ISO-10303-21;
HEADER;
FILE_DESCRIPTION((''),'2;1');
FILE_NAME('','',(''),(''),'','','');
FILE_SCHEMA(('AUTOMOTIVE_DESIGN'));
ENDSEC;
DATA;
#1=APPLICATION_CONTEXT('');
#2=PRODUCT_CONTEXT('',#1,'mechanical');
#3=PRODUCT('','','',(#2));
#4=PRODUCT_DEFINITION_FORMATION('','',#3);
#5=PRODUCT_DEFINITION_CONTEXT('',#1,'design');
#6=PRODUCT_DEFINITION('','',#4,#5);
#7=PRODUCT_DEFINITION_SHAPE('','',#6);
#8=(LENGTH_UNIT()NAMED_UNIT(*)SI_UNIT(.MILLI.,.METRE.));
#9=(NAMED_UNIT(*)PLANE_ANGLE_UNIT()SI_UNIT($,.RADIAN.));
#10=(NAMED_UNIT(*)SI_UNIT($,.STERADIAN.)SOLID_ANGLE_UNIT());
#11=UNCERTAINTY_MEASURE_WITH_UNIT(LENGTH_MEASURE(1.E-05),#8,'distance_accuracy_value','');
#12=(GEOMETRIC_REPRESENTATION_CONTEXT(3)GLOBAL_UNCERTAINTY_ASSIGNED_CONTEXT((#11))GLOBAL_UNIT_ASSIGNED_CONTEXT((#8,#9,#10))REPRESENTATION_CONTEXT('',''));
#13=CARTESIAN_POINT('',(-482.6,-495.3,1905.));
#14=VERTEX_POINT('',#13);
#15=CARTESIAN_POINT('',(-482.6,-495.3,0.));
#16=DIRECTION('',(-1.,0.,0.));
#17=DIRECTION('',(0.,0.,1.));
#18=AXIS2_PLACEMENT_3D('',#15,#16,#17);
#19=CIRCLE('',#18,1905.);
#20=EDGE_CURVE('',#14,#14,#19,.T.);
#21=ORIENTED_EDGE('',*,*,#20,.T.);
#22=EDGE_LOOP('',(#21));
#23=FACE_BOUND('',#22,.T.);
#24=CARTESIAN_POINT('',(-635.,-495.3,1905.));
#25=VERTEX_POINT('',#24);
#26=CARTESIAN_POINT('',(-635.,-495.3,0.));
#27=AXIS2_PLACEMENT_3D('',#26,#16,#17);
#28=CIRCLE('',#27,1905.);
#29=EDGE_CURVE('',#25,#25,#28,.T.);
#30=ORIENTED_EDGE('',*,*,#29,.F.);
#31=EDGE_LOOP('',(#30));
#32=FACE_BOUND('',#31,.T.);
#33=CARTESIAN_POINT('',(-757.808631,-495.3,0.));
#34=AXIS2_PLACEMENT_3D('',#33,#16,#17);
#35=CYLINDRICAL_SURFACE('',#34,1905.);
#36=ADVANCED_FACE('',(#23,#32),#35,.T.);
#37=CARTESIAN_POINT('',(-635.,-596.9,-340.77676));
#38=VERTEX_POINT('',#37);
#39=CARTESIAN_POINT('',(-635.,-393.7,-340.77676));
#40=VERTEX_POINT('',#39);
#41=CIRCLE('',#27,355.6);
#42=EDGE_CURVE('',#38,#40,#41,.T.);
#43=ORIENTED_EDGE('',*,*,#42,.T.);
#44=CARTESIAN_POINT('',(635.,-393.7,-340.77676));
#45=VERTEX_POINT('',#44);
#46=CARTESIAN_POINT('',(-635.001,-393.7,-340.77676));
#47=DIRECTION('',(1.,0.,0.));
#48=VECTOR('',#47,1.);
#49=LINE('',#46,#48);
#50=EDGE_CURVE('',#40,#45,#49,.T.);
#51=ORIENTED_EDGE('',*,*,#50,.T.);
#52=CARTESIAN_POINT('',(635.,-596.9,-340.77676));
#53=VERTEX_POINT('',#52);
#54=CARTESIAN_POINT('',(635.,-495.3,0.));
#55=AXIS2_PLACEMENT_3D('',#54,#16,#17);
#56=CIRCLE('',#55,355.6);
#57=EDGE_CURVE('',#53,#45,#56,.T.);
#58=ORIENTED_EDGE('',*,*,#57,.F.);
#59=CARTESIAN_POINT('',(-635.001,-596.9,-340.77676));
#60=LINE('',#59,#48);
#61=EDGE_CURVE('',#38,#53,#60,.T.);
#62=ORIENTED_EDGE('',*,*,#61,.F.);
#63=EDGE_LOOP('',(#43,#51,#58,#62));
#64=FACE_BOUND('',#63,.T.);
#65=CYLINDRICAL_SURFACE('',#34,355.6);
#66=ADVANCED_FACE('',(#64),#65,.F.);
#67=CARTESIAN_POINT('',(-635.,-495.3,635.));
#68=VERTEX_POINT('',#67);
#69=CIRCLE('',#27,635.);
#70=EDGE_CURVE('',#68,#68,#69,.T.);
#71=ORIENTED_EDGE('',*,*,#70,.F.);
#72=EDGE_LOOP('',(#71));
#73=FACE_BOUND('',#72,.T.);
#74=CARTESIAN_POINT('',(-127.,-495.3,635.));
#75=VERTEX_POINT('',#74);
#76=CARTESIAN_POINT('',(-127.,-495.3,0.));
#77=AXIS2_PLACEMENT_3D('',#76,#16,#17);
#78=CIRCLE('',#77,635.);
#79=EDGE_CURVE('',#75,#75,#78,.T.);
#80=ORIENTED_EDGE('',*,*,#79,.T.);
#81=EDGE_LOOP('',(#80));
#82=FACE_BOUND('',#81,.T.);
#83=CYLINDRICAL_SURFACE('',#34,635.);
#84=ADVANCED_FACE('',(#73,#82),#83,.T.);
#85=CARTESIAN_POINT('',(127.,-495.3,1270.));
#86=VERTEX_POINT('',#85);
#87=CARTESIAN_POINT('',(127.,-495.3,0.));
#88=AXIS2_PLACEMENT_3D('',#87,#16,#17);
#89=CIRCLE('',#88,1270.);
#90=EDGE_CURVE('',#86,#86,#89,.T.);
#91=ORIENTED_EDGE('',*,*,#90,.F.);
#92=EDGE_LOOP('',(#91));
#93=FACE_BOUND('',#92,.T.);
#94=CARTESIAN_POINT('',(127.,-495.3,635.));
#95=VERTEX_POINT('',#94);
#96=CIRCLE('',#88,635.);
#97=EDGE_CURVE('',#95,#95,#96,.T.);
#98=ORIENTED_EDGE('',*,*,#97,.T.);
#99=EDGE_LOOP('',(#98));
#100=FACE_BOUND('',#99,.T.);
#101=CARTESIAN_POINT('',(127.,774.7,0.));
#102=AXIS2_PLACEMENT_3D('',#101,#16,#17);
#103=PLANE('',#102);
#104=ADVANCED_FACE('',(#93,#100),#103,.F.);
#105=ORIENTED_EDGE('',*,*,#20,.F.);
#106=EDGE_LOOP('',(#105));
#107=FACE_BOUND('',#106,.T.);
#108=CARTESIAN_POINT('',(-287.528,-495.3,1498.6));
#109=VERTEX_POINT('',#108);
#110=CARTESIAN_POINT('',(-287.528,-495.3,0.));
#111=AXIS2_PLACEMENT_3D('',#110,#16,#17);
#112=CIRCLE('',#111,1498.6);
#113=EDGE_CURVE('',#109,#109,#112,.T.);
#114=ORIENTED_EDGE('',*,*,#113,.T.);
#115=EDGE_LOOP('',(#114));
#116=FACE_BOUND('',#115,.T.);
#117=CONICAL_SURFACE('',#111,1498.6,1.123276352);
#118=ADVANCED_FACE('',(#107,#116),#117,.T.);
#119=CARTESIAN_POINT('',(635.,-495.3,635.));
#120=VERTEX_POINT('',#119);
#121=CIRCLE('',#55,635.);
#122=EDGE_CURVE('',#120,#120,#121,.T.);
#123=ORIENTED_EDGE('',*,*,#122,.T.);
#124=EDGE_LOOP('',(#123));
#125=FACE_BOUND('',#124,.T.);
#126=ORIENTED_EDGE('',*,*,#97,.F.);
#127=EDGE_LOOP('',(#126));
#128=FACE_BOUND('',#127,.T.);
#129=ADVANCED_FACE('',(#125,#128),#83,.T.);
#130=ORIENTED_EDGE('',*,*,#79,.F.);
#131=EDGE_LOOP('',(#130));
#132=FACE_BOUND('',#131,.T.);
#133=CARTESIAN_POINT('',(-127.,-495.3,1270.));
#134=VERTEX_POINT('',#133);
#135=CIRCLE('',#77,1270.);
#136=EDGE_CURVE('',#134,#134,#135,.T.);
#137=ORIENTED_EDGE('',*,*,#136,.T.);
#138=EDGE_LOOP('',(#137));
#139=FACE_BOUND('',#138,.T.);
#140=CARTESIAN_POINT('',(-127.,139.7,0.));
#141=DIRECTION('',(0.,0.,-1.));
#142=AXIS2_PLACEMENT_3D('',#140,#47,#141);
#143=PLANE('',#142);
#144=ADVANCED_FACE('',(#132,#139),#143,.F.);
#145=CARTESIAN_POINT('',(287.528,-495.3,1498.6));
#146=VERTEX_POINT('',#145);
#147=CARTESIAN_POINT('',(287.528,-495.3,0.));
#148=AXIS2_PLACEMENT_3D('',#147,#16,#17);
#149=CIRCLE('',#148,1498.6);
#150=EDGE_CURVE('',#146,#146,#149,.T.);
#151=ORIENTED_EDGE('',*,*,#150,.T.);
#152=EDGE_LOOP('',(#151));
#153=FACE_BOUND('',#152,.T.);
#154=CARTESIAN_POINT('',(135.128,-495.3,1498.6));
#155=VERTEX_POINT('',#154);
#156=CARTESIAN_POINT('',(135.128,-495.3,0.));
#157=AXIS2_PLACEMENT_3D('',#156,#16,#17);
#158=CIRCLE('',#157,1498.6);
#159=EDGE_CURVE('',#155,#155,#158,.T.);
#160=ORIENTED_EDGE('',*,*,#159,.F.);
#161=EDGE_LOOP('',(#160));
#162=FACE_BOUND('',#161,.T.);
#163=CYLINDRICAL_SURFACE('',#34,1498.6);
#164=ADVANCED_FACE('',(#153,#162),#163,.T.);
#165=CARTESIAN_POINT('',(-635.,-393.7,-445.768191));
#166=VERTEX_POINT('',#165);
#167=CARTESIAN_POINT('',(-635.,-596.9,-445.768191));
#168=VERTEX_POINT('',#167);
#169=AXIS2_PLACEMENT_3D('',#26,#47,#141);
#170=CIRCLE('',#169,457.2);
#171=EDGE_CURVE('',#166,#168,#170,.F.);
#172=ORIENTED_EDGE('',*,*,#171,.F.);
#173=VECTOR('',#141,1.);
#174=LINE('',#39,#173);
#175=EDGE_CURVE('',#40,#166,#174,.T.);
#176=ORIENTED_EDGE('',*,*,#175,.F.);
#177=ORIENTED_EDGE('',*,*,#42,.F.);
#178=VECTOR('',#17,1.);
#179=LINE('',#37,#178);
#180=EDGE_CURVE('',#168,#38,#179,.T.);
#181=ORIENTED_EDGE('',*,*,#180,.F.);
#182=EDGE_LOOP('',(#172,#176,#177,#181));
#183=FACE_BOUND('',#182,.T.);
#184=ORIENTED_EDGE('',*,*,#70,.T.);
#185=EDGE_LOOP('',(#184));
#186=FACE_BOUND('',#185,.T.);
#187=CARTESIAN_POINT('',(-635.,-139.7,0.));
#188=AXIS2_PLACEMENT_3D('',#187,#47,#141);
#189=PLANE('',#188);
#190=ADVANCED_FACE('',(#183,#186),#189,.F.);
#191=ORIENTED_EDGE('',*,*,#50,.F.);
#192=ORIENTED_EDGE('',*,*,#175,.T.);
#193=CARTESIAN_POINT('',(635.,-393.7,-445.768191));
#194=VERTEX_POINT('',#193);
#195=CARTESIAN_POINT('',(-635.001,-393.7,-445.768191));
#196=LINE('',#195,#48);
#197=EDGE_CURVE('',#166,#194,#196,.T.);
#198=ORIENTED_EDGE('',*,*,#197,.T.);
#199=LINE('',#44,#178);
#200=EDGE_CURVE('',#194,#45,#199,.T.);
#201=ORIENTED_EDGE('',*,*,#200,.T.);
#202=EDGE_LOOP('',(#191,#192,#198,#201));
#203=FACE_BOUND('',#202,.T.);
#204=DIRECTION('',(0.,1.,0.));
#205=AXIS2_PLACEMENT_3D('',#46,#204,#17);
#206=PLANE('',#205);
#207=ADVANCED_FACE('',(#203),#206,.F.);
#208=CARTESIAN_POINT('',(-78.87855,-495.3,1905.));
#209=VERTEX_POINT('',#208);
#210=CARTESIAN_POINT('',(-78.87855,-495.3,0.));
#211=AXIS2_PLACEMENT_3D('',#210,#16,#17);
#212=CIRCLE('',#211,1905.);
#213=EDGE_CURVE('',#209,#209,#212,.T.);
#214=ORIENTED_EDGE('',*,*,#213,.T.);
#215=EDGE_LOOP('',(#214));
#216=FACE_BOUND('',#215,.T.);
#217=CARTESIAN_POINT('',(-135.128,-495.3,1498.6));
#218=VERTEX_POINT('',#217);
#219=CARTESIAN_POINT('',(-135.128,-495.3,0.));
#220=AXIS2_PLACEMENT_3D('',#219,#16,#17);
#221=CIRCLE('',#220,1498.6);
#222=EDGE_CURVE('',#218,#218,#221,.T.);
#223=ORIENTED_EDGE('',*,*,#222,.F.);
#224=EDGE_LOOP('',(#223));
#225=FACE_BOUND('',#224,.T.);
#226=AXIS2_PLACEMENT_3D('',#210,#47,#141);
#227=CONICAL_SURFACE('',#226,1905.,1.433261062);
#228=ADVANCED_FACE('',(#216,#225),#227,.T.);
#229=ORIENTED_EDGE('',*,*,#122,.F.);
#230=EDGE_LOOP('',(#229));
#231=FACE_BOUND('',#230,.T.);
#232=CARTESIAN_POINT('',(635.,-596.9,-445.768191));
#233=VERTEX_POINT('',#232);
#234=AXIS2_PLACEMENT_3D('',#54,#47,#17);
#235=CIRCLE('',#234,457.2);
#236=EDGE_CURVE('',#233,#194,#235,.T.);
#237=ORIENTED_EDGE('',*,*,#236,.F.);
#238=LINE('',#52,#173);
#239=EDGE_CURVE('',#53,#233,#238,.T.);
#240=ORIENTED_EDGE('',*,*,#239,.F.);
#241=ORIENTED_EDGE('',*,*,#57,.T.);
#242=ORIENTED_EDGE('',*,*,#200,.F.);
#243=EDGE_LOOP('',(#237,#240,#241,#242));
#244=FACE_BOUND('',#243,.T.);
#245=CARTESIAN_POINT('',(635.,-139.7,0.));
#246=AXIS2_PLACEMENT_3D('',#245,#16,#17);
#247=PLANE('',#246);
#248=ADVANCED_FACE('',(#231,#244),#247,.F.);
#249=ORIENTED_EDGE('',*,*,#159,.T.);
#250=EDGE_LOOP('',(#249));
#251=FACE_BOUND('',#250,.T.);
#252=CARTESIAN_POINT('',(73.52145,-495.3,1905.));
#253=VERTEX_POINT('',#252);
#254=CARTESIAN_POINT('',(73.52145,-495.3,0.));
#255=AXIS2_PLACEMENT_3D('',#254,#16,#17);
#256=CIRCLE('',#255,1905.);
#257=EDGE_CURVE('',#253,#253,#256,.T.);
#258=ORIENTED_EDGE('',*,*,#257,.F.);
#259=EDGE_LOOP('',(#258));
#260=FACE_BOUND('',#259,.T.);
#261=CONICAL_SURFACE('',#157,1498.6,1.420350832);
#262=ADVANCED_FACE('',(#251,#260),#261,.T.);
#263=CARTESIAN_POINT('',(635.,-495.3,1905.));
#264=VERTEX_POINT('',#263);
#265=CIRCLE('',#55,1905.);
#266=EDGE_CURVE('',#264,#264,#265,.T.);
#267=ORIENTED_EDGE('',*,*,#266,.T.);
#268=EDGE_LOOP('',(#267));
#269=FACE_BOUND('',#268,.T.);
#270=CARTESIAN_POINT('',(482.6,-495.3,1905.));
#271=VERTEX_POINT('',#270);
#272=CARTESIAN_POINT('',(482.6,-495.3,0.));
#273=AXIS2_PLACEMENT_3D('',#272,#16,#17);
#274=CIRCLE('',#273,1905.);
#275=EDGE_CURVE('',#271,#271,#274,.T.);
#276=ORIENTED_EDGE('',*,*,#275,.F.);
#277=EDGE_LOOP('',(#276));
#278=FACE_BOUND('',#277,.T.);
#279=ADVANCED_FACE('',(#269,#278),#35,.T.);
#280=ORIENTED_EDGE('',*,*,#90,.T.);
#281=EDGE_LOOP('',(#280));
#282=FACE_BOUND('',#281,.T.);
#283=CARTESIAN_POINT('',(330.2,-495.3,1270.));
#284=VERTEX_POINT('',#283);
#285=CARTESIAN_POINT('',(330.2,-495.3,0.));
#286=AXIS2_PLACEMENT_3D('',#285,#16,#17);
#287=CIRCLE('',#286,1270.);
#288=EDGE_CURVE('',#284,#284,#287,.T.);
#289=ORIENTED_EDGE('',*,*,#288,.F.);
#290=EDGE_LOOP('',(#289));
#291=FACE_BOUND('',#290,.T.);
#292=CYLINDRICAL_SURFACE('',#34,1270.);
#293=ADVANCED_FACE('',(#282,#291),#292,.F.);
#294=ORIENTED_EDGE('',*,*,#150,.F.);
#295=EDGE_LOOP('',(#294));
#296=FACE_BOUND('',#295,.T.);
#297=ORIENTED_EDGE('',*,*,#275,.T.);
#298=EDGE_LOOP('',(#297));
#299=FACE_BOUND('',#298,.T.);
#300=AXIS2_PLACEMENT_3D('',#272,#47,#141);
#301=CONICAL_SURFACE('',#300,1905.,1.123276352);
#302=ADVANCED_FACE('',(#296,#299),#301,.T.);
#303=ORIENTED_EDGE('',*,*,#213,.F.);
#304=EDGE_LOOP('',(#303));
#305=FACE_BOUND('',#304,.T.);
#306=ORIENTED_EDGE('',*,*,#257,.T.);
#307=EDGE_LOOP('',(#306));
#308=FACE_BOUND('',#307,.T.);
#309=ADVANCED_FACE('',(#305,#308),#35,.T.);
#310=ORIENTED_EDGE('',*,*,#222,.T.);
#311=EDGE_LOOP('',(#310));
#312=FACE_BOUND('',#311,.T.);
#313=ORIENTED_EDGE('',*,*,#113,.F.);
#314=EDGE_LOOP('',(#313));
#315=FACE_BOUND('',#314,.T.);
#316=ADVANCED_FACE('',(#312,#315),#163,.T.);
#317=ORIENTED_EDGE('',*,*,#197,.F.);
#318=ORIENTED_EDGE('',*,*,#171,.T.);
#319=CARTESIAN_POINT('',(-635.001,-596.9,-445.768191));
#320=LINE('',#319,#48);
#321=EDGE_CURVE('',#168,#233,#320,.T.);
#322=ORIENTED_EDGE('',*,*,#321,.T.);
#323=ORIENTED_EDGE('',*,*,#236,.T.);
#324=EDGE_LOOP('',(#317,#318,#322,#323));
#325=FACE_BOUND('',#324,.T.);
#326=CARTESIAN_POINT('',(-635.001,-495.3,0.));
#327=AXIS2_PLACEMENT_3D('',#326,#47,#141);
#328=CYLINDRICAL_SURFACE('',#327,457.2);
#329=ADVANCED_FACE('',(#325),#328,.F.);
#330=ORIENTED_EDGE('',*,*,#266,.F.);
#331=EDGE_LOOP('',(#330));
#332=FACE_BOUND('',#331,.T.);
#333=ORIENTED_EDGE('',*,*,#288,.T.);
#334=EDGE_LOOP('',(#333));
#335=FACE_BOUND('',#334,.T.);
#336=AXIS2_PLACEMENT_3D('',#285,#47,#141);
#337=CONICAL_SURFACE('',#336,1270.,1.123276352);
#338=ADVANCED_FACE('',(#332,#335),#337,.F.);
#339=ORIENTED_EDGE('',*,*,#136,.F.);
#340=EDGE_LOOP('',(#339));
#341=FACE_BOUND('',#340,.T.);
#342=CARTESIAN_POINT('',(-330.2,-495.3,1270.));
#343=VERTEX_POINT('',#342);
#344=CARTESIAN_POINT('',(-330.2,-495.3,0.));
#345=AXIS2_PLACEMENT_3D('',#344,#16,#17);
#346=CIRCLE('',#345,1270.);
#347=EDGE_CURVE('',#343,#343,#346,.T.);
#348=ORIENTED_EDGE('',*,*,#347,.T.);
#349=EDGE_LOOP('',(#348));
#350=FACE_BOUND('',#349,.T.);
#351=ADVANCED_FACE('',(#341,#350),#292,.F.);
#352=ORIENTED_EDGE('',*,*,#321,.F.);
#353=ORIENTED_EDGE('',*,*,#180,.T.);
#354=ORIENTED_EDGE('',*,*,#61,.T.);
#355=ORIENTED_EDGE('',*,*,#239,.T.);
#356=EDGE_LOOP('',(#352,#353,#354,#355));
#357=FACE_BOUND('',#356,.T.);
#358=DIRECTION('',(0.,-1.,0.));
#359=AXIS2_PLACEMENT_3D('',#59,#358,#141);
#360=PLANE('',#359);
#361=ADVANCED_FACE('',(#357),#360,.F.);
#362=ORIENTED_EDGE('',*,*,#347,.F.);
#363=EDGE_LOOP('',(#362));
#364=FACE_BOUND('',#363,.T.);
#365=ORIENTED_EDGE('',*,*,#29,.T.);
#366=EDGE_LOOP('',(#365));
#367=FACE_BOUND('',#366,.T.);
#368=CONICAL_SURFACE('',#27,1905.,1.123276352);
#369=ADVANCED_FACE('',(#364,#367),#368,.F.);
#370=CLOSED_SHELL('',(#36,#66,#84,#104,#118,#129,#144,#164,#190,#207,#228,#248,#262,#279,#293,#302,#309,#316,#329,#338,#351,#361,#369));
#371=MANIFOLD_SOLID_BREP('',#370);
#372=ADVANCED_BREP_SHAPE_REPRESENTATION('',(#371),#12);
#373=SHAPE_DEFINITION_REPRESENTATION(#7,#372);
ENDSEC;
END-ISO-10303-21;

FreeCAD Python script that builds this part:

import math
import FreeCAD as App
import Part
import Sketcher
Q = App.Units.Quantity


def add_polygon(sketch, points):
    """Adds a closed chain of lines whose ends are joined by coincident constraints."""
    first, n = sketch.GeometryCount, len(points)
    for a, b in zip(points, points[1:] + points[:1]):
        sketch.addGeometry(Part.LineSegment(App.Vector(*a, 0), App.Vector(*b, 0)), False)
    for i in range(n):
        sketch.addConstraint(Sketcher.Constraint("Coincident", first + i, 2, first + (i + 1) % n, 1))

doc = App.newDocument("Part")
body = doc.addObject("PartDesign::Body", "Body")

# Sketch on XY plane
sketch1 = body.newObject("Sketcher::SketchObject", "Sketch")
sketch1.AttachmentSupport = (doc.getObject("XY_Plane"), [""])
sketch1.MapMode = "FlatFace"
add_polygon(sketch1, [(-127, 775), (-127, 140), (-635, 140), (-635, -140), (635, -140), (635, 140), (127, 140), (127, 775), (330, 775), (635, 1410), (483, 1410), (288, 1003), (135, 1003), (74, 1410), (-79, 1410), (-135, 1003), (-288, 1003), (-483, 1410), (-635, 1410), (-330, 775)])  # lines 0-19
sketch1.addGeometry(Part.LineSegment(App.Vector(-635, -495, 0), App.Vector(635, -495, 0)), True)  # axis
sketch1.addConstraint([
    Sketcher.Constraint("Vertical", 0),
    Sketcher.Constraint("Horizontal", 1),
    Sketcher.Constraint("Vertical", 2),
    Sketcher.Constraint("Horizontal", 3),
    Sketcher.Constraint("Vertical", 4),
    Sketcher.Constraint("Horizontal", 5),
    Sketcher.Constraint("Vertical", 6),
    Sketcher.Constraint("Horizontal", 7),
    Sketcher.Constraint("Horizontal", 9),
    Sketcher.Constraint("Horizontal", 11),
    Sketcher.Constraint("Horizontal", 13),
    Sketcher.Constraint("Horizontal", 15),
    Sketcher.Constraint("Horizontal", 17),
    Sketcher.Constraint("Horizontal", 19),
    Sketcher.Constraint("Horizontal", 20),
    Sketcher.Constraint("Symmetric", 1, 2, 3, 2, -1, 1),
    Sketcher.Constraint("Symmetric", 0, 2, 5, 2, -2),
    Sketcher.Constraint("Symmetric", 11, 2, 14, 2, -2),
    Sketcher.Constraint("Symmetric", 9, 2, 16, 2, -2),
    Sketcher.Constraint("Symmetric", 7, 2, 18, 2, -2),
    Sketcher.Constraint("Parallel", 8, 10),
    Sketcher.Constraint("Parallel", 16, 18),
    Sketcher.Constraint("Horizontal", 9, 2, 12, 2),
    Sketcher.Constraint("Vertical", 4, 2, 8, 2),
    Sketcher.Constraint("Vertical", 2, 2, 17, 2),
    Sketcher.Constraint("Vertical", 17, 2, 20, 1),
    Sketcher.Constraint("Vertical", 8, 2, 20, 2),
    Sketcher.Constraint("Equal", 9, 11),
    Sketcher.Constraint("Equal", 11, 13),
    Sketcher.Constraint("DistanceX", 1, 2, 1, 1, Q("20 in")),
    Sketcher.Constraint("DistanceX", 3, 1, 3, 2, Q("50 in")),
    Sketcher.Constraint("DistanceX", 7, 1, 7, 2, Q("8 in")),
    Sketcher.Constraint("DistanceX", 9, 2, 9, 1, Q("6 in")),
    Sketcher.Constraint("DistanceY", 0, 2, 0, 1, Q("25 in")),
    Sketcher.Constraint("DistanceY", 2, 2, 2, 1, Q("11 in")),
    Sketcher.Constraint("DistanceY", 7, 2, 8, 2, Q("25 in")),
    Sketcher.Constraint("DistanceY", 7, 2, 10, 2, Q("9 in")),
    Sketcher.Constraint("DistanceY", 20, 1, 2, 2, Q("14 in")),
    Sketcher.Constraint("Distance", 14, 410.274251),
])
revolution = body.newObject("PartDesign::Revolution", "Revolution")
revolution.Profile = sketch1
revolution.ReferenceAxis = (sketch1, ["Axis0"])
revolution.Angle = 360

# Sketch on YZ plane
sketch2 = body.newObject("Sketcher::SketchObject", "Sketch001")
sketch2.AttachmentSupport = (doc.getObject("YZ_Plane"), [""])
sketch2.MapMode = "FlatFace"
sketch2.AttachmentOffset = App.Placement(App.Vector(0, 0, 25 * 25.4), App.Rotation())
sketch2.addGeometry([
    Part.LineSegment(App.Vector(-394, -446, 0), App.Vector(-394, -341, 0)),
    Part.ArcOfCircle(Part.Circle(App.Vector(-495, 0, 0), App.Vector(0, 0, 1), 356), math.radians(-107), math.radians(-73)),
    Part.LineSegment(App.Vector(-597, -341, 0), App.Vector(-597, -446, 0)),
    Part.ArcOfCircle(Part.Circle(App.Vector(-495, 0, 0), App.Vector(0, 0, 1), 457), math.radians(-103), math.radians(-77)),
], False)
sketch2.addConstraint([
    Sketcher.Constraint("Coincident", 0, 2, 1, 2),
    Sketcher.Constraint("Coincident", 1, 1, 2, 1),
    Sketcher.Constraint("Coincident", 2, 2, 3, 1),
    Sketcher.Constraint("Coincident", 3, 2, 0, 1),
    Sketcher.Constraint("Vertical", 0),
    Sketcher.Constraint("Vertical", 2),
    Sketcher.Constraint("Coincident", 3, 3, 1, 3),
    Sketcher.Constraint("PointOnObject", 1, 3, -1),
    Sketcher.Constraint("Horizontal", 0, 2, 1, 1),
    Sketcher.Constraint("Radius", 1, Q("14 in")),
    Sketcher.Constraint("Radius", 3, Q("18 in")),
    Sketcher.Constraint("DistanceX", 1, 3, 0, 2, Q("4 in")),
    Sketcher.Constraint("DistanceX", 1, 3, -1, 1, Q("19.5 in")),
])
pocket1 = body.newObject("PartDesign::Pocket", "Pocket")
pocket1.Profile = sketch2
pocket1.Type = "UpToFirst"

doc.recompute()
